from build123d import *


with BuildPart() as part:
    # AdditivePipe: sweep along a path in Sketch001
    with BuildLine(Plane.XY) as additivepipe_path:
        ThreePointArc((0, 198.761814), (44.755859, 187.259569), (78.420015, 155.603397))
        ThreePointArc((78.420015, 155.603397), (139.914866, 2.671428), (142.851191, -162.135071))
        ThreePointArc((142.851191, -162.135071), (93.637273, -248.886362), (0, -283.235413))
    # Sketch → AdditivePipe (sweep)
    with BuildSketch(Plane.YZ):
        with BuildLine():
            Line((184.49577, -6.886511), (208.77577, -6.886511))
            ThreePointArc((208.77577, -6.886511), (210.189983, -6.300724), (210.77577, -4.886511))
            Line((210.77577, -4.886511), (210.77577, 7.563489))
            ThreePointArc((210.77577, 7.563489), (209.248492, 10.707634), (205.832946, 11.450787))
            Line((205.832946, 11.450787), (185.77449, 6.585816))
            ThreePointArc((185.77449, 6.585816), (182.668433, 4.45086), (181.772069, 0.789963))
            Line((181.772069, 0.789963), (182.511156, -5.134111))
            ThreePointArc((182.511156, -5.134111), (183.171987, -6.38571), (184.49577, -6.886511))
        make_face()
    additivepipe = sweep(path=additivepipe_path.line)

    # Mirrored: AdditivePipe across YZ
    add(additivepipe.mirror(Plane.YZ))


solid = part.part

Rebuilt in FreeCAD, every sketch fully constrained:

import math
import FreeCAD as App
import Part
import Sketcher

V = App.Vector
Q = App.Units.Quantity

doc = App.newDocument("Part")
params = doc.addObject("Spreadsheet::Sheet", "Params")
for row, (alias, value) in enumerate([
    ("sketch1_radius", "2.000002 mm"),
    ("sketch1_radius2", "4 mm"),
    ("sketch1_radius3", "5.289999 mm"),
    ("sketch1_width", "24.28 mm"),
    ("sketch1_height", "12.45 mm"),
], start=1):
    params.set(f"A{row}", alias)
    params.set(f"B{row}", "=" + value)
    params.setAlias(f"B{row}", alias)

body = doc.addObject("PartDesign::Body", "Body")

# Sketch on YZ plane
sketch1 = body.newObject("Sketcher::SketchObject", "Sketch")
sketch1.AttachmentSupport = (doc.getObject("YZ_Plane"), [""])
sketch1.MapMode = "FlatFace"
sketch1.addGeometry(Part.LineSegment(V(184.49577, -6.886511, 0), V(208.77577, -6.886511, 0)), False)
sketch1.addGeometry(Part.ArcOfCircle(Part.Circle(V(208.775768, -4.886509, 0), V(0, 0, 1), 2.000002), math.radians(-89.999945), math.radians(-0.000055)), False)
sketch1.addGeometry(Part.LineSegment(V(210.77577, -4.886511, 0), V(210.77577, 7.563489, 0)), False)
sketch1.addGeometry(Part.ArcOfCircle(Part.Circle(V(206.77577, 7.563489, 0), V(0, 0, 1), 4), math.radians(-0.000004), math.radians(103.633241)), False)
sketch1.addGeometry(Part.LineSegment(V(205.832946, 11.450787, 0), V(185.77449, 6.585816, 0)), False)
sketch1.addGeometry(Part.ArcOfCircle(Part.Circle(V(187.021373, 1.444865, 0), V(0, 0, 1), 5.289999), math.radians(103.633226), math.radians(187.111469)), False)
sketch1.addGeometry(Part.LineSegment(V(181.772069, 0.789963, 0), V(182.511156, -5.134111, 0)), False)
sketch1.addGeometry(Part.ArcOfCircle(Part.Circle(V(184.49577, -4.886511, 0), V(0, 0, 1), 2), math.radians(-172.888539), math.radians(-90.000009)), False)
sketch1.addConstraint(Sketcher.Constraint("Tangent", 0, 2, 1, 1))
sketch1.addConstraint(Sketcher.Constraint("Tangent", 1, 2, 2, 1))
sketch1.addConstraint(Sketcher.Constraint("Tangent", 2, 2, 3, 1))
sketch1.addConstraint(Sketcher.Constraint("Tangent", 3, 2, 4, 1))
sketch1.addConstraint(Sketcher.Constraint("Tangent", 4, 2, 5, 1))
sketch1.addConstraint(Sketcher.Constraint("Tangent", 5, 2, 6, 1))
sketch1.addConstraint(Sketcher.Constraint("Tangent", 6, 2, 7, 1))
sketch1.addConstraint(Sketcher.Constraint("Tangent", 7, 2, 0, 1))
sketch1.addConstraint(Sketcher.Constraint("Horizontal", 0))
sketch1.addConstraint(Sketcher.Constraint("Vertical", 2))
sketch1.addConstraint(Sketcher.Constraint("Equal", 1, 7))
sketch1.addConstraint(Sketcher.Constraint("Radius", 1, Q("2.000002 mm")))
sketch1.addConstraint(Sketcher.Constraint("Radius", 3, Q("4 mm")))
sketch1.addConstraint(Sketcher.Constraint("Radius", 5, Q("5.289999 mm")))
sketch1.addConstraint(Sketcher.Constraint("DistanceX", 0, 1, 0, 2, Q("24.28 mm")))
sketch1.addConstraint(Sketcher.Constraint("DistanceY", 2, 1, 2, 2, Q("12.45 mm")))
sketch1.addConstraint(Sketcher.Constraint("Distance", 4, Q("20.64 mm")))
sketch1.addConstraint(Sketcher.Constraint("Distance", 6, Q("5.97 mm")))
sketch1.addConstraint(Sketcher.Constraint("DistanceX", -1, 1, 1, 3, Q("208.775768 mm")))
sketch1.addConstraint(Sketcher.Constraint("DistanceY", 1, 3, -1, 1, Q("4.886509 mm")))
sketch1.setExpression("Constraints[11]", "Params.sketch1_radius")
sketch1.setExpression("Constraints[12]", "Params.sketch1_radius2")
sketch1.setExpression("Constraints[13]", "Params.sketch1_radius3")
sketch1.setExpression("Constraints[14]", "Params.sketch1_width")
sketch1.setExpression("Constraints[15]", "Params.sketch1_height")

# Sketch on XY plane
sketch2 = body.newObject("Sketcher::SketchObject", "Sketch001")
sketch2.AttachmentSupport = (doc.getObject("XY_Plane"), [""])
sketch2.MapMode = "FlatFace"
sketch2.addGeometry(Part.ArcOfCircle(Part.Circle(V(0.000002, 105.936961, 0), V(0, 0, 1), 92.824853), math.radians(32.347667), math.radians(90.000001)), False)
sketch2.addGeometry(Part.ArcOfCircle(Part.Circle(V(-305.736868, -87.698069, 0), V(0, 0, 1), 454.722019), math.radians(-9.421596), math.radians(32.347668)), False)
sketch2.addGeometry(Part.ArcOfCircle(Part.Circle(V(0, -138.430886, 0), V(0, 0, 1), 144.804527), math.radians(-90), math.radians(-9.421597)), False)
sketch2.addConstraint(Sketcher.Constraint("Tangent", 0, 1, 1, 2))
sketch2.addConstraint(Sketcher.Constraint("Tangent", 1, 1, 2, 2))
sketch2.addConstraint(Sketcher.Constraint("PointOnObject", 0, 3, -2))
sketch2.addConstraint(Sketcher.Constraint("PointOnObject", 2, 3, -2))
sketch2.addConstraint(Sketcher.Constraint("PointOnObject", 0, 2, -2))
sketch2.addConstraint(Sketcher.Constraint("PointOnObject", 2, 1, -2))
sketch2.addConstraint(Sketcher.Constraint("Radius", 1, Q("454.722019 mm")))
sketch2.addConstraint(Sketcher.Constraint("Radius", 0, Q("92.824853 mm")))
sketch2.addConstraint(Sketcher.Constraint("Radius", 2, Q("144.804527 mm")))
sketch2.addConstraint(Sketcher.Constraint("DistanceY", 2, 3, 0, 2, Q("337.1927 mm")))
sketch2.addConstraint(Sketcher.Constraint("DistanceY", -1, 1, 0, 3, Q("105.936961 mm")))
doc.recompute()

additivepipe = body.newObject("PartDesign::AdditivePipe", "AdditivePipe")
additivepipe.Profile = sketch1
additivepipe.Spine = (sketch2, ["Edge1", "Edge2", "Edge3"])
doc.recompute()

mirrored = body.newObject("PartDesign::Mirrored", "Mirrored")
mirrored.Originals = [additivepipe]
mirrored.MirrorPlane = (doc.getObject("YZ_Plane"), [""])
body.Tip = mirrored

doc.recompute()
